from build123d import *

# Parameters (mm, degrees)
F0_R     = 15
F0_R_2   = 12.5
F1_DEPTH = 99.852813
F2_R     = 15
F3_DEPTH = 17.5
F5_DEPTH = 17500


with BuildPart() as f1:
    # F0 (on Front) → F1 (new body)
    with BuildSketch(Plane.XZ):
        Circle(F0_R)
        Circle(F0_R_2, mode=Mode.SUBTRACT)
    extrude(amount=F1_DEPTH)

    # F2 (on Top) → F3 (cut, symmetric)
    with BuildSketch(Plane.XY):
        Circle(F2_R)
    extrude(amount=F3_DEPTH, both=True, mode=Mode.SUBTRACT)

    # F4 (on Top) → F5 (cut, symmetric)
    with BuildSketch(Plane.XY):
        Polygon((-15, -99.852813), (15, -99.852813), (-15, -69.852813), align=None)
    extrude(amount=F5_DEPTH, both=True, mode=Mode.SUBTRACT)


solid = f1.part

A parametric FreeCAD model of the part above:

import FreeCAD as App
import Part
import Sketcher
from FreeCAD import Vector
Q = App.Units.Quantity

doc = App.newDocument("Part")
body = doc.addObject("PartDesign::Body", "Body")

# Sketch on XZ plane
sketch1 = body.newObject("Sketcher::SketchObject", "Sketch")
sketch1.AttachmentSupport = (doc.getObject("XZ_Plane"), [""])
sketch1.MapMode = "FlatFace"
sketch1.addGeometry([
    Part.Circle(Vector(0, 0, 0), Vector(0, 0, 1), 15),
    Part.Circle(Vector(0, 0, 0), Vector(0, 0, 1), 12),
], False)
sketch1.addConstraint([
    Sketcher.Constraint("Coincident", 0, 3, -1, 1),
    Sketcher.Constraint("Coincident", 1, 3, -1, 1),
    Sketcher.Constraint("Diameter", 0, Q("30 mm")),
    Sketcher.Constraint("Diameter", 1, Q("25 mm")),
])
pad1 = body.newObject("PartDesign::Pad", "Pad")
pad1.Profile = sketch1
pad1.Length = 99.852813

# Sketch on XY plane
sketch2 = body.newObject("Sketcher::SketchObject", "Sketch001")
sketch2.AttachmentSupport = (doc.getObject("XY_Plane"), [""])
sketch2.MapMode = "FlatFace"
sketch2.addGeometry(Part.Circle(Vector(0, 0, 0), Vector(0, 0, 1), 15), False)
sketch2.addConstraint([
    Sketcher.Constraint("Coincident", 0, 3, -1, 1),
    Sketcher.Constraint("Diameter", 0, Q("30 mm")),
])
pocket1 = body.newObject("PartDesign::Pocket", "Pocket")
pocket1.Profile = sketch2
pocket1.Length = 35
pocket1.Midplane = True

# Sketch on XY plane
sketch3 = body.newObject("Sketcher::SketchObject", "Sketch002")
sketch3.AttachmentSupport = (doc.getObject("XY_Plane"), [""])
sketch3.MapMode = "FlatFace"
sketch3.addGeometry([
    Part.LineSegment(Vector(-15, -100, 0), Vector(15, -100, 0)),
    Part.LineSegment(Vector(15, -100, 0), Vector(-15, -70, 0)),
    Part.LineSegment(Vector(-15, -70, 0), Vector(-15, -100, 0)),
], False)
sketch3.addConstraint([
    Sketcher.Constraint("Coincident", 0, 2, 1, 1),
    Sketcher.Constraint("Coincident", 1, 2, 2, 1),
    Sketcher.Constraint("Coincident", 2, 2, 0, 1),
    Sketcher.Constraint("Horizontal", 0),
    Sketcher.Constraint("Vertical", 2),
    Sketcher.Constraint("Equal", 0, 2),
    Sketcher.Constraint("DistanceX", 0, 1, 0, 2, Q("30 mm")),
    Sketcher.Constraint("DistanceX", -1, 1, 0, 2, Q("15 mm")),
    Sketcher.Constraint("DistanceY", 0, 2, -1, 1, Q("99.852813 mm")),
])
pocket2 = body.newObject("PartDesign::Pocket", "Pocket001")
pocket2.Profile = sketch3
pocket2.Length = 35000
pocket2.Midplane = True

doc.recompute()
